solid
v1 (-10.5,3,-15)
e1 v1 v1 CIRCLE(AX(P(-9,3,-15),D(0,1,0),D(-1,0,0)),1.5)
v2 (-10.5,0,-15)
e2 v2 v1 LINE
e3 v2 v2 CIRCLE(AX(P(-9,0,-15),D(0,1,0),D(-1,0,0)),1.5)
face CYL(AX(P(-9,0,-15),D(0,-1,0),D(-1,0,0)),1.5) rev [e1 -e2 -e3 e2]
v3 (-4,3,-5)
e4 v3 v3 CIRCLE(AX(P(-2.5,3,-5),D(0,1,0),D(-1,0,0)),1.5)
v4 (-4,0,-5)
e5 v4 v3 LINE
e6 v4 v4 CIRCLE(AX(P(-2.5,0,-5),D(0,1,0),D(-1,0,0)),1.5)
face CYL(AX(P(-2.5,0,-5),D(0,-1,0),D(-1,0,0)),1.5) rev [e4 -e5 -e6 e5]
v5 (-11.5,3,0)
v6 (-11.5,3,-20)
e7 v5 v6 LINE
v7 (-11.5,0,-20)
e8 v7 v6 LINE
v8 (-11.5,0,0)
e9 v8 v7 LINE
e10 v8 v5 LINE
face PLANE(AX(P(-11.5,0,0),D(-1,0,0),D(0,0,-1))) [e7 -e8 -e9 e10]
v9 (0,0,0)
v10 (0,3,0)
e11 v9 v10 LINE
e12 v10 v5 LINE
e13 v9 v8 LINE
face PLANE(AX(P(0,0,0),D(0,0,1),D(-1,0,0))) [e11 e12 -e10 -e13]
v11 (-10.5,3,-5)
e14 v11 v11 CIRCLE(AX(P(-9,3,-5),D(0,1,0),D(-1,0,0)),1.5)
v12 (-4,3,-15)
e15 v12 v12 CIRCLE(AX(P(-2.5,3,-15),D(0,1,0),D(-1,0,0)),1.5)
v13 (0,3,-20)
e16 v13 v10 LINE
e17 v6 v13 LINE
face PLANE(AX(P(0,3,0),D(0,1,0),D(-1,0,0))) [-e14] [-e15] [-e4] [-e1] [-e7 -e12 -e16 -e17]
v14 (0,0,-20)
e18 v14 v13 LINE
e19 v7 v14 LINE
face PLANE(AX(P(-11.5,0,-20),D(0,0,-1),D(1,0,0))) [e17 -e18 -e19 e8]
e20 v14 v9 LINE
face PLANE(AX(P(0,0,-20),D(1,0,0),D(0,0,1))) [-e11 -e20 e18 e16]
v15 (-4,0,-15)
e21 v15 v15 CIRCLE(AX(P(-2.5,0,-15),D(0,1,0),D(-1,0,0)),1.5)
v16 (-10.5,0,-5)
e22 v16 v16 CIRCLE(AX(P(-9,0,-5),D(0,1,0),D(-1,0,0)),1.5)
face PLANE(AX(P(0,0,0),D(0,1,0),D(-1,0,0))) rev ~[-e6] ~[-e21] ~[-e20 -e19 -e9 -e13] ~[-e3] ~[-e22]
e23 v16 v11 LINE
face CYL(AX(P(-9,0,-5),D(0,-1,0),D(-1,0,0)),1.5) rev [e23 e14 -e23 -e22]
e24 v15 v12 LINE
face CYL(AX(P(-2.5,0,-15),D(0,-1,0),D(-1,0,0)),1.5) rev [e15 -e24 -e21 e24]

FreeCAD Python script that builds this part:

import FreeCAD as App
import Part
import Sketcher
Q = App.Units.Quantity


def add_polygon(sketch, points):
    """Adds a closed chain of lines whose ends are joined by coincident constraints."""
    first, n = sketch.GeometryCount, len(points)
    for a, b in zip(points, points[1:] + points[:1]):
        sketch.addGeometry(Part.LineSegment(App.Vector(*a, 0), App.Vector(*b, 0)), False)
    for i in range(n):
        sketch.addConstraint(Sketcher.Constraint("Coincident", first + i, 2, first + (i + 1) % n, 1))

doc = App.newDocument("Part")
params = doc.addObject("Spreadsheet::Sheet", "Params")
for row, (alias, value) in enumerate([
    ("sketch1_diameter", "3 mm"),
    ("sketch1_height", "20 mm"),
    ("sketch1_width", "11.5 mm"),
    ("pad1_length", "3 mm"),
], start=1):
    params.set(f"A{row}", alias)
    params.set(f"B{row}", "=" + value)
    params.setAlias(f"B{row}", alias)

body = doc.addObject("PartDesign::Body", "Body")

# Sketch on XZ plane
sketch1 = body.newObject("Sketcher::SketchObject", "Sketch")
sketch1.AttachmentSupport = (doc.getObject("XZ_Plane"), [""])
sketch1.MapMode = "FlatFace"
add_polygon(sketch1, [(-11.5, 0), (0, 0), (0, -20), (-11.5, -20)])  # lines 0-3
sketch1.addGeometry(Part.Circle(App.Vector(-2.5, -15, 0), App.Vector(0, 0, 1), 1.5), False)  # 4
sketch1.addGeometry(Part.Circle(App.Vector(-9, -15, 0), App.Vector(0, 0, 1), 1.5), False)  # 5
sketch1.addGeometry(Part.Circle(App.Vector(-2.5, -5, 0), App.Vector(0, 0, 1), 1.5), False)  # 6
sketch1.addGeometry(Part.Circle(App.Vector(-9, -5, 0), App.Vector(0, 0, 1), 1.5), False)  # 7
sketch1.addConstraint(Sketcher.Constraint("Horizontal", 0))
sketch1.addConstraint(Sketcher.Constraint("Vertical", 1))
sketch1.addConstraint(Sketcher.Constraint("Horizontal", 2))
sketch1.addConstraint(Sketcher.Constraint("Vertical", 3))
sketch1.addConstraint(Sketcher.Constraint("Coincident", 0, 2, -1, 1))
sketch1.addConstraint(Sketcher.Constraint("Equal", 4, 5))
sketch1.addConstraint(Sketcher.Constraint("Equal", 5, 6))
sketch1.addConstraint(Sketcher.Constraint("Equal", 6, 7))
sketch1.addConstraint(Sketcher.Constraint("Horizontal", 4, 3, 5, 3))
sketch1.addConstraint(Sketcher.Constraint("Horizontal", 6, 3, 7, 3))
sketch1.addConstraint(Sketcher.Constraint("Vertical", 4, 3, 6, 3))
sketch1.addConstraint(Sketcher.Constraint("Vertical", 5, 3, 7, 3))
sketch1.addConstraint(Sketcher.Constraint("Diameter", 4, Q("3 mm")))
sketch1.addConstraint(Sketcher.Constraint("DistanceY", 1, 2, 1, 1, Q("20 mm")))
sketch1.addConstraint(Sketcher.Constraint("DistanceX", 0, 1, 0, 2, Q("11.5 mm")))
sketch1.addConstraint(Sketcher.Constraint("DistanceY", 4, 3, 6, 3, Q("10 mm")))
sketch1.addConstraint(Sketcher.Constraint("DistanceX", 4, 3, -1, 1, Q("2.5 mm")))
sketch1.addConstraint(Sketcher.Constraint("DistanceX", 2, 2, 5, 3, Q("2.5 mm")))
sketch1.addConstraint(Sketcher.Constraint("DistanceY", 4, 3, -1, 1, Q("15 mm")))
sketch1.setExpression("Constraints[16]", "Params.sketch1_diameter")
sketch1.setExpression("Constraints[17]", "Params.sketch1_height")
sketch1.setExpression("Constraints[18]", "Params.sketch1_width")
pad1 = body.newObject("PartDesign::Pad", "Pad")
pad1.Profile = sketch1
pad1.setExpression("Length", "Params.pad1_length")
pad1.Reversed = True

doc.recompute()
